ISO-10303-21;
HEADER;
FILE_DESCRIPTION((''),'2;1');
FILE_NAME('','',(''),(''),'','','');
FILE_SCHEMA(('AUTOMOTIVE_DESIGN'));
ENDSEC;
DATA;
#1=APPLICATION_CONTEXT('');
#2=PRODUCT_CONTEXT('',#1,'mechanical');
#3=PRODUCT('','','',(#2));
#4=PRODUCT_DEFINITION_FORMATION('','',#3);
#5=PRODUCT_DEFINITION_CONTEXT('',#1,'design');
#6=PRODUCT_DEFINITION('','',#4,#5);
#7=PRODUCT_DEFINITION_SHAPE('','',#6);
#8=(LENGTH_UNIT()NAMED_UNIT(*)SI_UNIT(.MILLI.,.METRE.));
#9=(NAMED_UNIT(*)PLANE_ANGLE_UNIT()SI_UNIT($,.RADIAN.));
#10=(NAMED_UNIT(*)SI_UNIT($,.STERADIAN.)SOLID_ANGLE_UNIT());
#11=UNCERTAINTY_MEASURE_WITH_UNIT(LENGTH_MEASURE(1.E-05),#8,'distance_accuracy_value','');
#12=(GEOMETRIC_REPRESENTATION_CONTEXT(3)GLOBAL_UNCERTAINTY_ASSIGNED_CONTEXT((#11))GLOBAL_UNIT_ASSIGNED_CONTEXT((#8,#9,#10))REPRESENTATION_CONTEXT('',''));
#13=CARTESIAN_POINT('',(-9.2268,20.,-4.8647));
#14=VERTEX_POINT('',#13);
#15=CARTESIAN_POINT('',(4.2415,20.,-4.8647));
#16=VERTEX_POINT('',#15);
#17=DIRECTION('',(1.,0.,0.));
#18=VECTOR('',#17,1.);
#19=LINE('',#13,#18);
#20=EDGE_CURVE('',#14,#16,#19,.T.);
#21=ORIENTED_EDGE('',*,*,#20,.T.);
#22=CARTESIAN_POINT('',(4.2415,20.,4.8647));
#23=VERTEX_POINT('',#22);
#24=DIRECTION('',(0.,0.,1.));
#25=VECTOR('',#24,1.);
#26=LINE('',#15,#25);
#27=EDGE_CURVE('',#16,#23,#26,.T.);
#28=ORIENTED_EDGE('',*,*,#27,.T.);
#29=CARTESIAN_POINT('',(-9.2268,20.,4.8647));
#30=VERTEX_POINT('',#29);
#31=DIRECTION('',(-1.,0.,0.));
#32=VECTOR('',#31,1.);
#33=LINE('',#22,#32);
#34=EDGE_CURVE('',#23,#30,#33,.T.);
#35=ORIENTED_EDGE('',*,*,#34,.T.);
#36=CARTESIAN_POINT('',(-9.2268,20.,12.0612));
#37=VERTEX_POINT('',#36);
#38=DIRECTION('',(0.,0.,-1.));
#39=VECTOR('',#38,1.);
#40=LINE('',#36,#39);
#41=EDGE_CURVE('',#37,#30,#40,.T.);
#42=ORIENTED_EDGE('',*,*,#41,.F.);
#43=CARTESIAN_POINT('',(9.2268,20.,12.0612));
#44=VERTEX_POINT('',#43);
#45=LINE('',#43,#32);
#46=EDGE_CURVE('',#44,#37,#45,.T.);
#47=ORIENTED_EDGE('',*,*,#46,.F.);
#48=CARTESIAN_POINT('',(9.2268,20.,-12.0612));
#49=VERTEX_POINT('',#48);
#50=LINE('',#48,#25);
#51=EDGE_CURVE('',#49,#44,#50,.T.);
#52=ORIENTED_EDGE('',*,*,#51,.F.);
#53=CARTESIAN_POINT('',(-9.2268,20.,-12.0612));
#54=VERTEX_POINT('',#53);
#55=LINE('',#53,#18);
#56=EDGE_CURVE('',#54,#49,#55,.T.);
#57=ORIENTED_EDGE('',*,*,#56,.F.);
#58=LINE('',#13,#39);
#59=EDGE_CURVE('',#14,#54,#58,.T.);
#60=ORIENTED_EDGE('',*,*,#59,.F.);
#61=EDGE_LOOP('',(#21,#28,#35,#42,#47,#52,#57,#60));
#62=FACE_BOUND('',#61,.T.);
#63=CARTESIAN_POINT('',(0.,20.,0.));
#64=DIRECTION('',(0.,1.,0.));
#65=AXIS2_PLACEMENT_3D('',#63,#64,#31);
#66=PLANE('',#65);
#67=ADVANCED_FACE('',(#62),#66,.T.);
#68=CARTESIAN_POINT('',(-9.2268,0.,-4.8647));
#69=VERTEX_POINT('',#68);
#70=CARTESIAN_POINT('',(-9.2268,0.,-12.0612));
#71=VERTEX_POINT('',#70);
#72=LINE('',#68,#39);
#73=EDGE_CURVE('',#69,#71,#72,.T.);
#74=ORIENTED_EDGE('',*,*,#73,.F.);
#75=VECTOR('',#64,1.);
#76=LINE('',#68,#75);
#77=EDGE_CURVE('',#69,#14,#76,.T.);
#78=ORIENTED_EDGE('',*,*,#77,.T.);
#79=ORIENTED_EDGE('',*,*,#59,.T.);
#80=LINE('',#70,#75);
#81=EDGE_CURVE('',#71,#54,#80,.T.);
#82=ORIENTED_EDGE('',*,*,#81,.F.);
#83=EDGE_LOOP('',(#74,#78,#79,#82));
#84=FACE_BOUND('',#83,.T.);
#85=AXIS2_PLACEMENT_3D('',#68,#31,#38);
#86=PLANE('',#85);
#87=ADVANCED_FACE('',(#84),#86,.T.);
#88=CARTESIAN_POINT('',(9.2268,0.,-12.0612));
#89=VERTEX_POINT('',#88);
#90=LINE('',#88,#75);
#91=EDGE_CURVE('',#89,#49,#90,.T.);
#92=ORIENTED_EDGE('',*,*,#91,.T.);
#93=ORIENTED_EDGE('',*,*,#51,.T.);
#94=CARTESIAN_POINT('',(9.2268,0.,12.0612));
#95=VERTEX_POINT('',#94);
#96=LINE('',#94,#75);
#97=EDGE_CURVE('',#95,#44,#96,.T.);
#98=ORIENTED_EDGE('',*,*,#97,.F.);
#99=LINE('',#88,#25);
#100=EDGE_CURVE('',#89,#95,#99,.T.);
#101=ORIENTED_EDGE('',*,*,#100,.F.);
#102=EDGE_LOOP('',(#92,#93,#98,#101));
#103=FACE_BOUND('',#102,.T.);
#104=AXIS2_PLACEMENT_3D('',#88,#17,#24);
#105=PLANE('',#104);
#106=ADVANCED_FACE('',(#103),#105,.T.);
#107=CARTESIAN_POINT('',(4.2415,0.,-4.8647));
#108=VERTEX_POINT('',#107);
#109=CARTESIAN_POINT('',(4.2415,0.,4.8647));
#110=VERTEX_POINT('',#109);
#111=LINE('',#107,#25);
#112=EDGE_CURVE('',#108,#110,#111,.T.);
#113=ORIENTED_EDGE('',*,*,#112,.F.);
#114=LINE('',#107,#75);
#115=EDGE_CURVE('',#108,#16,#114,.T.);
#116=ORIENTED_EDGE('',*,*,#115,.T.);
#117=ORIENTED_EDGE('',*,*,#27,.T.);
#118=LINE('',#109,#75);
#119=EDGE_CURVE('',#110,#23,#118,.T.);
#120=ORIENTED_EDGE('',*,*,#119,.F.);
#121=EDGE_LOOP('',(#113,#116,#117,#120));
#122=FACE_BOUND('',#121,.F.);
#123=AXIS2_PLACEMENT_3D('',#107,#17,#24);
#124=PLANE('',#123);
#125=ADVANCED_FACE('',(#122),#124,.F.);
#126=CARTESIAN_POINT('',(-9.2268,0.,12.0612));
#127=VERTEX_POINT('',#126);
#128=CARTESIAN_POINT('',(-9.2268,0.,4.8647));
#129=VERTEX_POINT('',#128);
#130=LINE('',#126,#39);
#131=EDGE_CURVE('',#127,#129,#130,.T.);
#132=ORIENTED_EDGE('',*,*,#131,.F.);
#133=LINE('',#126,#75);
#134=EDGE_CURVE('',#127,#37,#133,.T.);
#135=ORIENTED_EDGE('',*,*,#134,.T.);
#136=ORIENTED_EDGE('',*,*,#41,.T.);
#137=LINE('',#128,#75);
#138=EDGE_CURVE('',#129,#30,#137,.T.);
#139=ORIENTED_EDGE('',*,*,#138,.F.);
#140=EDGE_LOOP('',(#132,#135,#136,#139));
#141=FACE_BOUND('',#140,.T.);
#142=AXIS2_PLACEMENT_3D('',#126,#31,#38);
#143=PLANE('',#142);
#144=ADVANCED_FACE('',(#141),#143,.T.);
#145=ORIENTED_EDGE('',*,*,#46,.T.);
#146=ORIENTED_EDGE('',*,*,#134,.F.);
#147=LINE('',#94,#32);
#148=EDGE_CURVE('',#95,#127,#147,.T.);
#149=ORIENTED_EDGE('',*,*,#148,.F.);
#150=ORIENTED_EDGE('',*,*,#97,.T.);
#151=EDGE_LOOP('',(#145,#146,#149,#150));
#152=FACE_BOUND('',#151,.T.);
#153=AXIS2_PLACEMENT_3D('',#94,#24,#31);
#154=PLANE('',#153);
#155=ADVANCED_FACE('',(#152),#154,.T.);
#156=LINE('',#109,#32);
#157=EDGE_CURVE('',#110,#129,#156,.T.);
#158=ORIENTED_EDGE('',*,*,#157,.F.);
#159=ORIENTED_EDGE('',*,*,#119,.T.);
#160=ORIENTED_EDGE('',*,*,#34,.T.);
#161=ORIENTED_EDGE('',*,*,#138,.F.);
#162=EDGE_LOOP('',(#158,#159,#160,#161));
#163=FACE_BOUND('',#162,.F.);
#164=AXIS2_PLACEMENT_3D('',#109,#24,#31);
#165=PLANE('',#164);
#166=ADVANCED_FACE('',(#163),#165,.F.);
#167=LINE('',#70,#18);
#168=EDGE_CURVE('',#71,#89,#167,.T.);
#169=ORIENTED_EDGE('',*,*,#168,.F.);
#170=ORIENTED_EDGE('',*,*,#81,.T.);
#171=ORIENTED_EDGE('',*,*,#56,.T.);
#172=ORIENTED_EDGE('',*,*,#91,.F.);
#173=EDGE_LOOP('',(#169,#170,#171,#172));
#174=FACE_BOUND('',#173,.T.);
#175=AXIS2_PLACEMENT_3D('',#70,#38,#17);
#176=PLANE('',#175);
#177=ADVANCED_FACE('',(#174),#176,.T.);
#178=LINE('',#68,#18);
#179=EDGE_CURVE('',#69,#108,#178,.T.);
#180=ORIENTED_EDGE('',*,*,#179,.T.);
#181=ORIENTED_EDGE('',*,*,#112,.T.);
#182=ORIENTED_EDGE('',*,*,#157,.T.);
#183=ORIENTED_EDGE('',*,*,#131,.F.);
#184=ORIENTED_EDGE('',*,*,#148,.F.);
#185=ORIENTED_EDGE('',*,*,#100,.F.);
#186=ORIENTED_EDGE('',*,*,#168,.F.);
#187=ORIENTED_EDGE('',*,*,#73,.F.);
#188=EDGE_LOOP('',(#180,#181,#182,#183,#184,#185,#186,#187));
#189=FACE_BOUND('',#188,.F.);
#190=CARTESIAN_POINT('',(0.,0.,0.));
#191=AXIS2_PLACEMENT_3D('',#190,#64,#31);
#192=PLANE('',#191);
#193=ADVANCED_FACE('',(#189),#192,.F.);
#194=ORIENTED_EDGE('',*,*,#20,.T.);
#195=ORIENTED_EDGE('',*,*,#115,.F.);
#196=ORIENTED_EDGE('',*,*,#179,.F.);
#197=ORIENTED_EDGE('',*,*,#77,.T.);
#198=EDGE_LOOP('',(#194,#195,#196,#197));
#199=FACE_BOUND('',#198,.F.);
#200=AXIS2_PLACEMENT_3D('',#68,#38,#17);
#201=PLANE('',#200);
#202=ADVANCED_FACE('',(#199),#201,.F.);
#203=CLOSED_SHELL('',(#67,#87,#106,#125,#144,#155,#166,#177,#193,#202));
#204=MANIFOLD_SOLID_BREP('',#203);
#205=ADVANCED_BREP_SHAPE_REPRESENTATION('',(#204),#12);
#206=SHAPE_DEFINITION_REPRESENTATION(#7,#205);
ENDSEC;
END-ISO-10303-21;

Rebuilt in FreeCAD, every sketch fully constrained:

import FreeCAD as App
import Part
import Sketcher
from FreeCAD import Vector

doc = App.newDocument("Part")
params = doc.addObject("Spreadsheet::Sheet", "Params")
for row, (alias, value) in enumerate([
    ("pad1_length", "20 mm"),
], start=1):
    params.set(f"A{row}", alias)
    params.set(f"B{row}", "=" + value)
    params.setAlias(f"B{row}", alias)

body = doc.addObject("PartDesign::Body", "Body")

sketch1 = body.newObject("Sketcher::SketchObject", "Sketch")
sketch1.AttachmentSupport = (doc.getObject("XZ_Plane"), [""])
sketch1.MapMode = "FlatFace"
sketch1.addGeometry([
    Part.LineSegment(Vector(-9, 12, 0), Vector(9, 12, 0)),
    Part.LineSegment(Vector(9, 12, 0), Vector(9, -12, 0)),
    Part.LineSegment(Vector(9, -12, 0), Vector(-9, -12, 0)),
    Part.LineSegment(Vector(-9, -12, 0), Vector(-9, -5, 0)),
    Part.LineSegment(Vector(-9, -5, 0), Vector(4, -5, 0)),
    Part.LineSegment(Vector(4, -5, 0), Vector(4, 5, 0)),
    Part.LineSegment(Vector(4, 5, 0), Vector(-9, 5, 0)),
    Part.LineSegment(Vector(-9, 5, 0), Vector(-9, 12, 0)),
], False)
sketch1.addConstraint([
    Sketcher.Constraint("Coincident", 0, 2, 1, 1),
    Sketcher.Constraint("Coincident", 1, 2, 2, 1),
    Sketcher.Constraint("Coincident", 2, 2, 3, 1),
    Sketcher.Constraint("Coincident", 3, 2, 4, 1),
    Sketcher.Constraint("Coincident", 4, 2, 5, 1),
    Sketcher.Constraint("Coincident", 5, 2, 6, 1),
    Sketcher.Constraint("Coincident", 6, 2, 7, 1),
    Sketcher.Constraint("Coincident", 7, 2, 0, 1),
    Sketcher.Constraint("Horizontal", 0),
    Sketcher.Constraint("Vertical", 1),
    Sketcher.Constraint("Horizontal", 2),
    Sketcher.Constraint("Vertical", 3),
    Sketcher.Constraint("Horizontal", 4),
    Sketcher.Constraint("Vertical", 5),
    Sketcher.Constraint("Horizontal", 6),
    Sketcher.Constraint("Vertical", 7),
    Sketcher.Constraint("Symmetric", 0, 2, 2, 2, -1, 1),
    Sketcher.Constraint("Symmetric", 3, 2, 6, 2, -1),
    Sketcher.Constraint("DistanceX", 0, 1, 0, 2, 18.4536),
    Sketcher.Constraint("DistanceX", 4, 1, 4, 2, 13.4683),
    Sketcher.Constraint("DistanceY", 1, 2, 1, 1, 24.1224),
    Sketcher.Constraint("DistanceY", 3, 1, 3, 2, 7.1965),
])
pad1 = body.newObject("PartDesign::Pad", "Pad")
pad1.Profile = sketch1
pad1.setExpression("Length", "Params.pad1_length")
pad1.Reversed = True

doc.recompute()
